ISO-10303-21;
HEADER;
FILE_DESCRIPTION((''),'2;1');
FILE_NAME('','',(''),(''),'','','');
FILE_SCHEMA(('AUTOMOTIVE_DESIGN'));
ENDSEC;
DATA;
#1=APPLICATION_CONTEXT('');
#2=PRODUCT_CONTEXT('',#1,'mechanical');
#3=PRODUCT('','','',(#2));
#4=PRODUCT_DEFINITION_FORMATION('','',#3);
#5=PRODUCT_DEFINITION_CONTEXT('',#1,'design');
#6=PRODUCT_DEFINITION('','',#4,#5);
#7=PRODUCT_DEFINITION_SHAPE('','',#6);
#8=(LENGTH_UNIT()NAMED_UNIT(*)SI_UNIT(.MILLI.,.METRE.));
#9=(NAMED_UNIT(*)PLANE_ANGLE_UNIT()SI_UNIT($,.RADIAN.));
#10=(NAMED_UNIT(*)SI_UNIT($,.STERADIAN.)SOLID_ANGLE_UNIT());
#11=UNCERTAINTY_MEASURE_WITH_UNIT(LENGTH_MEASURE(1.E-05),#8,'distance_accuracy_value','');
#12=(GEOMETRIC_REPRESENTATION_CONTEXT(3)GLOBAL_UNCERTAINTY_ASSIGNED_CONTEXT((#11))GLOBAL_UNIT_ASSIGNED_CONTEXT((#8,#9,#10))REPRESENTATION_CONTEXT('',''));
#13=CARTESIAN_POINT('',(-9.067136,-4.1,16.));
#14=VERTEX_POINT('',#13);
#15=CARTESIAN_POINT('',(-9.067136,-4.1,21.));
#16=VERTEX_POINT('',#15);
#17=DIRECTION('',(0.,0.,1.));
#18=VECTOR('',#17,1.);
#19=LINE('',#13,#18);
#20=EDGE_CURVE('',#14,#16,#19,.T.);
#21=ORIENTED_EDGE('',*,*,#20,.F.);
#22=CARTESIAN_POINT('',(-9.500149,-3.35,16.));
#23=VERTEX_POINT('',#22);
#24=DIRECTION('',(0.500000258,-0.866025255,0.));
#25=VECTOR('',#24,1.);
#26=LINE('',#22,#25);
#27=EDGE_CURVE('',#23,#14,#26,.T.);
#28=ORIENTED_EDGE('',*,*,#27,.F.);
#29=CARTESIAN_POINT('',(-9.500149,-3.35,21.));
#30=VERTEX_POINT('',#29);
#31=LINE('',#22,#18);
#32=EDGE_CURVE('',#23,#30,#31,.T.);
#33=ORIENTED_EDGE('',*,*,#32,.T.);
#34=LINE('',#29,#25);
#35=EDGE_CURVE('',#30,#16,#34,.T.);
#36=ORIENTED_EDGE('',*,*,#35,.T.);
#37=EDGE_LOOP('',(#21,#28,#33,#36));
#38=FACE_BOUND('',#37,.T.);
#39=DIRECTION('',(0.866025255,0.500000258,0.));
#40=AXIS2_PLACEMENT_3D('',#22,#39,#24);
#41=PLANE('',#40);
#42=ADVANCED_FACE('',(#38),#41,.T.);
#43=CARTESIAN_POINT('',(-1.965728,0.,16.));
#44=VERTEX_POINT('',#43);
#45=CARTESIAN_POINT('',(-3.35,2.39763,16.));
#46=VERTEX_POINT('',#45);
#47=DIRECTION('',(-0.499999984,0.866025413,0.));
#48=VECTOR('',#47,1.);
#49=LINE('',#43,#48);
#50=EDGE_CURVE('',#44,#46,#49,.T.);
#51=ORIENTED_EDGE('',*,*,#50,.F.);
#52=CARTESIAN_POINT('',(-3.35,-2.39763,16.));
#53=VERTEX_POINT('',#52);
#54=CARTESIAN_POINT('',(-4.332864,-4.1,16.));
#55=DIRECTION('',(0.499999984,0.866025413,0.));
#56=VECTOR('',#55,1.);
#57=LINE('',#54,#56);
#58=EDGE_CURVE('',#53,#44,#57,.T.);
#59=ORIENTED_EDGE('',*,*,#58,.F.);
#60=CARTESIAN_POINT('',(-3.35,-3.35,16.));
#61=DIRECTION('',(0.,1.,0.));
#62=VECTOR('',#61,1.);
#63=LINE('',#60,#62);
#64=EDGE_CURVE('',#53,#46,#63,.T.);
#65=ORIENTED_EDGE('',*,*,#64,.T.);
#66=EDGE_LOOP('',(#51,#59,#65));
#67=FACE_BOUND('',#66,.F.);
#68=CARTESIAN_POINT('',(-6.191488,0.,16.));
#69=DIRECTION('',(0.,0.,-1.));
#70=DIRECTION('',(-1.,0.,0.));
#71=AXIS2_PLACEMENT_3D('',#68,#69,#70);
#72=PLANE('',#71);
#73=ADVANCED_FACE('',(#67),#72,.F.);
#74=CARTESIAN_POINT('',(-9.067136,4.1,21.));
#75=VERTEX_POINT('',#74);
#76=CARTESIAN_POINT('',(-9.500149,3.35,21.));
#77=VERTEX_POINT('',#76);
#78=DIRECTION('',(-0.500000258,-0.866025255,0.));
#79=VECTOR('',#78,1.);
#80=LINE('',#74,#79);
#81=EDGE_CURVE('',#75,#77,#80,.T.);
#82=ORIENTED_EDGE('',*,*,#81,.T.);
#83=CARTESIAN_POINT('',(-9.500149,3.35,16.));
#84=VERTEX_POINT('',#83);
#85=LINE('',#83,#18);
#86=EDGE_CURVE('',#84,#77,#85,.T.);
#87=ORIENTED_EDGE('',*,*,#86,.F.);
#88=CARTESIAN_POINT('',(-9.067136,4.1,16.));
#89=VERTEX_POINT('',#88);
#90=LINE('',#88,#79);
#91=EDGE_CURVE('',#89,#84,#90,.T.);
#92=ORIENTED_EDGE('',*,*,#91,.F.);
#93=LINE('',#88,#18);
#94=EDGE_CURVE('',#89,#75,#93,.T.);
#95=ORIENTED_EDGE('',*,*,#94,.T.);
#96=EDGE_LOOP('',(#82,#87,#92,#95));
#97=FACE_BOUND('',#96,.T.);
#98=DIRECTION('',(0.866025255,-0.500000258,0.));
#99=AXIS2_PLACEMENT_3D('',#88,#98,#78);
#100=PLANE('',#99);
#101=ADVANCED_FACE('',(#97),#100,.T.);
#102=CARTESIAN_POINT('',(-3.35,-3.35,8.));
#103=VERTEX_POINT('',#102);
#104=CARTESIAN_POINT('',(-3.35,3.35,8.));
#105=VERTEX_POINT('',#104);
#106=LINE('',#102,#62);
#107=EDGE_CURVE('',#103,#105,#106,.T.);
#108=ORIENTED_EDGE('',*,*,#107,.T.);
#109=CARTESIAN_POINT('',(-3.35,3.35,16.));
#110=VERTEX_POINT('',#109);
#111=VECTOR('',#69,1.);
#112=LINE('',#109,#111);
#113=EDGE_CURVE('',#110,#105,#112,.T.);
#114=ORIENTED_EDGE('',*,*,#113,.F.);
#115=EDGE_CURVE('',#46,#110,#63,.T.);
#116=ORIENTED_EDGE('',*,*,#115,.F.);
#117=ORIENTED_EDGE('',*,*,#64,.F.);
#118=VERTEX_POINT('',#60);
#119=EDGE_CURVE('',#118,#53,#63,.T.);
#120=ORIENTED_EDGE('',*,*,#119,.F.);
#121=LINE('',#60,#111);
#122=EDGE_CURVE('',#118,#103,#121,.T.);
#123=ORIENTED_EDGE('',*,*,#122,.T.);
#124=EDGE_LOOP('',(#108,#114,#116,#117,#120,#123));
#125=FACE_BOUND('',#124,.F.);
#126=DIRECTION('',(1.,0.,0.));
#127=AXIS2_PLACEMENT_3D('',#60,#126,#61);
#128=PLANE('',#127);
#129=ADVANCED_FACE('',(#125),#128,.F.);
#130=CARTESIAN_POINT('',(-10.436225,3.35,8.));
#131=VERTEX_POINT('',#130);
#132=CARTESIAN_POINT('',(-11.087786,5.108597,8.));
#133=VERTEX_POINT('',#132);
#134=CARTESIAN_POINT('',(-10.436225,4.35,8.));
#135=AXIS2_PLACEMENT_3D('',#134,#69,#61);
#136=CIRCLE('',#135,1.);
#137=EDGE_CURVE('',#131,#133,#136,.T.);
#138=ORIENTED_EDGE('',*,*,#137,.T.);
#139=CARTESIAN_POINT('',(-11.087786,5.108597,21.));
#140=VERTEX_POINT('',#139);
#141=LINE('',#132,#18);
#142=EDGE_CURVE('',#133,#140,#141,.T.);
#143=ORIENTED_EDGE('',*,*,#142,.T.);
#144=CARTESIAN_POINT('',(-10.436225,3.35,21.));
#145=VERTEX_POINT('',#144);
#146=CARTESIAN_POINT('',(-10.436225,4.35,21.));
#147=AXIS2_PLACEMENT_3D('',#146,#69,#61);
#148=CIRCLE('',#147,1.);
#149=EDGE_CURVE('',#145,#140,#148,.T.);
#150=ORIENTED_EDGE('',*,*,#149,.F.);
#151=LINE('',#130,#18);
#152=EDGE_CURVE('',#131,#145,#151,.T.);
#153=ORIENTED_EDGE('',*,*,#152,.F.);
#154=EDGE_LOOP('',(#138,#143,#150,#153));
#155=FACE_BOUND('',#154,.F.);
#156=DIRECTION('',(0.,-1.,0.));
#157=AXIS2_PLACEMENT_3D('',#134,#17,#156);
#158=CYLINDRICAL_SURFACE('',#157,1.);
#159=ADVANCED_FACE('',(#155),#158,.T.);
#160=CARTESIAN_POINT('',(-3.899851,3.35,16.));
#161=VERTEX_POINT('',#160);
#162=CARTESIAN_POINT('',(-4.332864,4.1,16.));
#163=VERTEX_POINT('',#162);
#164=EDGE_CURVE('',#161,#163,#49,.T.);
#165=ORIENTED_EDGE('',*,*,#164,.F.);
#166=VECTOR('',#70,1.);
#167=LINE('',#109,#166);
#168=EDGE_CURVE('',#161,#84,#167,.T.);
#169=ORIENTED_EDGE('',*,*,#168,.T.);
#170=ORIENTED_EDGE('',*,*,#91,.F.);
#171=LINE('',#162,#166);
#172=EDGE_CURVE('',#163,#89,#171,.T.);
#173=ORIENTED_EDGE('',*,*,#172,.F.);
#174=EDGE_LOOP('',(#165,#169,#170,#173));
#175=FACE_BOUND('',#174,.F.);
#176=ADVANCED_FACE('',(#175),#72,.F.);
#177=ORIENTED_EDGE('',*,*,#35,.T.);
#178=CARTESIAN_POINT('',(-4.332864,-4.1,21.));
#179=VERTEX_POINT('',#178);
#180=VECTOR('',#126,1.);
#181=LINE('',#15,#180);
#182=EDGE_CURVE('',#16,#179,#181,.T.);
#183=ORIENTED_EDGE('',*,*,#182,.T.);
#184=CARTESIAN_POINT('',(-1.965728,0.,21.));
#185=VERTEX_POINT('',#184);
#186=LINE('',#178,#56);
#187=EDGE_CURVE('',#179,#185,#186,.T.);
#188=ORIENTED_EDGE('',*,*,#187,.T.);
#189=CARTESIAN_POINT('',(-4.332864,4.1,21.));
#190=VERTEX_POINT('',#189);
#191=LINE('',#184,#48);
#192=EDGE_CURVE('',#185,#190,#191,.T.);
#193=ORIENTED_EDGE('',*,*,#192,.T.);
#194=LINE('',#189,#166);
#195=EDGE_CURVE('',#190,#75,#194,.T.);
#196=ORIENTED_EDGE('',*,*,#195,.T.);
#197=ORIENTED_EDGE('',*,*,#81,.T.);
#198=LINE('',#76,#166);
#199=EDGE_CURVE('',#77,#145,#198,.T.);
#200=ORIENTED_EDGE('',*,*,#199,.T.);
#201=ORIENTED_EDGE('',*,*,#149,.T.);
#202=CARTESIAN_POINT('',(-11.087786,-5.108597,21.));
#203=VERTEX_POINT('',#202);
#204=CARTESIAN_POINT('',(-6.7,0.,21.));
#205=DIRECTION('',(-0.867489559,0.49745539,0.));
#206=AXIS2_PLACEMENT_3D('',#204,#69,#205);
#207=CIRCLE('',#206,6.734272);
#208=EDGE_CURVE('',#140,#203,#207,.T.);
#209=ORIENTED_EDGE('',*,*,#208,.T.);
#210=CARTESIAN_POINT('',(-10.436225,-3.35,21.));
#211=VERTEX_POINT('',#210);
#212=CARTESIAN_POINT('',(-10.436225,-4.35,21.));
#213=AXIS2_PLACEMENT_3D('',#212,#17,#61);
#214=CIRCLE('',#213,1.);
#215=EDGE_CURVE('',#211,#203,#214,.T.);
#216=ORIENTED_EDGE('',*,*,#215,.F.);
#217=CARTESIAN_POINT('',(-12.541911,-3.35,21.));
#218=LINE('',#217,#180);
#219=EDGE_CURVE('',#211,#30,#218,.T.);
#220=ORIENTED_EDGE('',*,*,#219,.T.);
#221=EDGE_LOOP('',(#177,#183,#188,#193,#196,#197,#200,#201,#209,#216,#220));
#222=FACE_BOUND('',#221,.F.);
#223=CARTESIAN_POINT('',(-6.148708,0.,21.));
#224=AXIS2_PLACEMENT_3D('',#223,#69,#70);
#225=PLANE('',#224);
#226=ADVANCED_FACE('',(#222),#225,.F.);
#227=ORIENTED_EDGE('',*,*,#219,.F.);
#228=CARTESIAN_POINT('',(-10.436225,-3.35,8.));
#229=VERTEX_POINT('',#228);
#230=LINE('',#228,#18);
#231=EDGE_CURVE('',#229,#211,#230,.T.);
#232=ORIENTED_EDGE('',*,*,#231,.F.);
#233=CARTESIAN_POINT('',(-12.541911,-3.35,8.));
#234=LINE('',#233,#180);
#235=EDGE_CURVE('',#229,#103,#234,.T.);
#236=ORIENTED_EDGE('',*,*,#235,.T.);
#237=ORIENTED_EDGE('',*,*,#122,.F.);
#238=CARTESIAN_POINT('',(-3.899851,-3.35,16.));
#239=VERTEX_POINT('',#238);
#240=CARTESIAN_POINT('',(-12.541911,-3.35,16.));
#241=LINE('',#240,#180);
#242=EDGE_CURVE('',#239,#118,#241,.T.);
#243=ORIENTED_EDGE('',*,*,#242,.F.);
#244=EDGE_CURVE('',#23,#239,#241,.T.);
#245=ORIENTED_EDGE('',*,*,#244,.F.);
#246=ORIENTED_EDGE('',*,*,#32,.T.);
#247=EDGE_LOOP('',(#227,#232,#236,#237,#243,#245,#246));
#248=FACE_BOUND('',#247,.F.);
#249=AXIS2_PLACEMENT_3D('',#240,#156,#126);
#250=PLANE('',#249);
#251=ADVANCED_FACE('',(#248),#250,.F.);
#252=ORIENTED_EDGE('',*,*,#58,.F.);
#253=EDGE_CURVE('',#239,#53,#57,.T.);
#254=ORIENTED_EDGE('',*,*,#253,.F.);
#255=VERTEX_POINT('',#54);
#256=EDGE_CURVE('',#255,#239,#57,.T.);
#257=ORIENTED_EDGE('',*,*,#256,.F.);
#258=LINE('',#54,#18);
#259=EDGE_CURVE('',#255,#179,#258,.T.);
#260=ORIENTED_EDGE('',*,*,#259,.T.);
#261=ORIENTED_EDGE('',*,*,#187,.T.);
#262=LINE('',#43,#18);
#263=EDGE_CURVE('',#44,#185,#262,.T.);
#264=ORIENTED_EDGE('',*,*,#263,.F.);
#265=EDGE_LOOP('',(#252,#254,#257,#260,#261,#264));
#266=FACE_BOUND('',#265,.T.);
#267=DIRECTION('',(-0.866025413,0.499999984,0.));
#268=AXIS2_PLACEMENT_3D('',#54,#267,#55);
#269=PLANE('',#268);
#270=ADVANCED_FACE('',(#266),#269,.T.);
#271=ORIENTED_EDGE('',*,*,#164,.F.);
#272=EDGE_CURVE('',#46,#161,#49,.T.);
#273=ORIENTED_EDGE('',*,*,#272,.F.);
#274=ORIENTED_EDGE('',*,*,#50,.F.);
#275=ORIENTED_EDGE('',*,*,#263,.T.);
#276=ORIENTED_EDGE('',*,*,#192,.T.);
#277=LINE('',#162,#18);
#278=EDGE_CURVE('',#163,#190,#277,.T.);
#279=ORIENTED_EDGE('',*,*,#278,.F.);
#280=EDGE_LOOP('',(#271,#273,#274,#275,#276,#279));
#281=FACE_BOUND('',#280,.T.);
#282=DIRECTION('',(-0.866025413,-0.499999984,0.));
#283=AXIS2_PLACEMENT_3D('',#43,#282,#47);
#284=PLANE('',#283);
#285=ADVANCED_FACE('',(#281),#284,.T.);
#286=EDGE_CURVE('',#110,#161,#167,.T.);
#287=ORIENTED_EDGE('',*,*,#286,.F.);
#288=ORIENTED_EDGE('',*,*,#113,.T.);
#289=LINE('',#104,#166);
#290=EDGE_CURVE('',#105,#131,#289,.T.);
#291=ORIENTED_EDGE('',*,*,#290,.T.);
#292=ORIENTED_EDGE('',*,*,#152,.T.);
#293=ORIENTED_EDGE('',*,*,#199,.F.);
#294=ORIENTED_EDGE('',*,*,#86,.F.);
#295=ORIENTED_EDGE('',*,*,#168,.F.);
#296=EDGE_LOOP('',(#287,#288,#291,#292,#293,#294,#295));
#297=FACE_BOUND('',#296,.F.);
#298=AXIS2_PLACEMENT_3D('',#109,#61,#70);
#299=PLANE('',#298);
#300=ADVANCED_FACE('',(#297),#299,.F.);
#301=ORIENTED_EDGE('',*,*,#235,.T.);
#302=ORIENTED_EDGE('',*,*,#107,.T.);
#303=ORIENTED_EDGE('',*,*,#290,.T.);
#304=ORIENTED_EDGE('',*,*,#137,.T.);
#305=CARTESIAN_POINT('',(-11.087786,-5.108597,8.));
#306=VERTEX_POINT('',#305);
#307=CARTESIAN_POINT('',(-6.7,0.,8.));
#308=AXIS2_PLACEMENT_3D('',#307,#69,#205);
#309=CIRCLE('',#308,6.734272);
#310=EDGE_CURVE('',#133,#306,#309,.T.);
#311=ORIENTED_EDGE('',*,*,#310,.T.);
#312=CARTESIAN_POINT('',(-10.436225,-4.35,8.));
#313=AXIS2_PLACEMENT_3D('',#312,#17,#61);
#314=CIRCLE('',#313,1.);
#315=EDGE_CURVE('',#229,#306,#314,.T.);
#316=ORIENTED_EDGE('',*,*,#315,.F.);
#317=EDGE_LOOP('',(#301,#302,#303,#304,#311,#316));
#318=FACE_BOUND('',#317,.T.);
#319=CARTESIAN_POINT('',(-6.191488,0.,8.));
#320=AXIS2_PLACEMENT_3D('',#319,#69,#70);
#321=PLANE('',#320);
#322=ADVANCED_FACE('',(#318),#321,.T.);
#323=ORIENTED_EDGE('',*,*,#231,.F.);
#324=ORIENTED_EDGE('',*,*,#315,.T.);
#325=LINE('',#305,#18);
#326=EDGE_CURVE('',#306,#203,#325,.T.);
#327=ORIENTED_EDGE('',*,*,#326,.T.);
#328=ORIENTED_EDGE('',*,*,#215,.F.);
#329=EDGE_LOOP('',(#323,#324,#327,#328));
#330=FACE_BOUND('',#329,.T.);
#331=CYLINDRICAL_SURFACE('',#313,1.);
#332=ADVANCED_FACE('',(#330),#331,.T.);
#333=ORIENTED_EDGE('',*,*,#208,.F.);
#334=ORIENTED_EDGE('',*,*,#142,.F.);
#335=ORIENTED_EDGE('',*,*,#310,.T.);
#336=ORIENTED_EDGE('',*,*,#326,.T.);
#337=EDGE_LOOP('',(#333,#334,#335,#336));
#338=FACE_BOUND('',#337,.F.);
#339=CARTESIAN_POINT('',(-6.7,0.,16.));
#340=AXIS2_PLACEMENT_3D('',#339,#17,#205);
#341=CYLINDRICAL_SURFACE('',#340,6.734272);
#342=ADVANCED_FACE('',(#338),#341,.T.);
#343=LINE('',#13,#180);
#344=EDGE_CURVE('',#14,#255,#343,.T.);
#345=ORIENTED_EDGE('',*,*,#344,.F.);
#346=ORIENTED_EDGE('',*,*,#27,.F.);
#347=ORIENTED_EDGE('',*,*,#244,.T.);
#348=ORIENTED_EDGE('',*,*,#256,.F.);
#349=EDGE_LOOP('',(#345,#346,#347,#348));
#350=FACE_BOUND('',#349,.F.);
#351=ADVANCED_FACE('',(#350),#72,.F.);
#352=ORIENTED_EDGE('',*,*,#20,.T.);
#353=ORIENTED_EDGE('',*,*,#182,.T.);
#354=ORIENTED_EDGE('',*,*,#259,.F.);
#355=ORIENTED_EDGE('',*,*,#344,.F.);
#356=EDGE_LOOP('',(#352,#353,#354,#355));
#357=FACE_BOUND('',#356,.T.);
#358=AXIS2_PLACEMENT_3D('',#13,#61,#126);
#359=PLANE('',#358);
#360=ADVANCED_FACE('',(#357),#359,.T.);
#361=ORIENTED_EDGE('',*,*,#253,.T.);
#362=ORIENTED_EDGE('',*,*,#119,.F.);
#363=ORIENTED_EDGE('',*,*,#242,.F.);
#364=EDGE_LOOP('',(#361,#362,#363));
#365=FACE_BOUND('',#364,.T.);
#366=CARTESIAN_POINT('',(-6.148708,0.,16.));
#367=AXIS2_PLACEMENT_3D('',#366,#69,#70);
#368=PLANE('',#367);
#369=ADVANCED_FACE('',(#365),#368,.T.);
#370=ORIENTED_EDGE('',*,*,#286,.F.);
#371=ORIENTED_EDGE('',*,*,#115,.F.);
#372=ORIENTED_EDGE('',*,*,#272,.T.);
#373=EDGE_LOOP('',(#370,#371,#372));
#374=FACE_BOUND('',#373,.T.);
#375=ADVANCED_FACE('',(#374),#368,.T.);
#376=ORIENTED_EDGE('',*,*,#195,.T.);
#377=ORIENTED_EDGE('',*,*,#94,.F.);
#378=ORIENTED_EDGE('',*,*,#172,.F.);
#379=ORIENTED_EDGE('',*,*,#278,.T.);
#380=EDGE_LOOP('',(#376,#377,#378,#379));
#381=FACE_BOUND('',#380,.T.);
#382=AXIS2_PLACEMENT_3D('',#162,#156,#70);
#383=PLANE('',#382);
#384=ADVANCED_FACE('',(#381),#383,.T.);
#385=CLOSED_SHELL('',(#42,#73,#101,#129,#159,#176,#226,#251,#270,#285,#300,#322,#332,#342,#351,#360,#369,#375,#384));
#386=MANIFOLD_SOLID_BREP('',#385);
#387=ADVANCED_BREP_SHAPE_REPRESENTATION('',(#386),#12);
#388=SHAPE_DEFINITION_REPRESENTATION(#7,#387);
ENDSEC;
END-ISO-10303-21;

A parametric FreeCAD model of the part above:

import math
import FreeCAD as App
import Part
import Sketcher
Q = App.Units.Quantity


def edges_at(feature, points):
    """Names of the edges that pass closest to the given points."""
    edges = feature.Shape.Edges
    near = lambda p: min(range(len(edges)), key=lambda i: edges[i].distToShape(Part.Vertex(*p))[0])
    return sorted({f"Edge{near(p) + 1}" for p in points})

doc = App.newDocument("Part")
body = doc.addObject("PartDesign::Body", "Body")

sketch1 = doc.addObject("Sketcher::SketchObject", "Sketch")
body.addObject(sketch1)
sketch1.AttachmentSupport = (doc.XY_Plane, [""])
sketch1.MapMode = "FlatFace"
sketch1.addGeometry([
    Part.LineSegment(App.Vector(-4.7, 0, 0), App.Vector(-2.4, 4.1, 0)),
    Part.LineSegment(App.Vector(-2.4, 4.1, 0), App.Vector(2.4, 4.1, 0)),
    Part.LineSegment(App.Vector(2.4, 4.1, 0), App.Vector(2.8, 3.4, 0)),
    Part.LineSegment(App.Vector(2.8, 3.4, 0), App.Vector(5.8, 3.4, 0)),
    Part.ArcOfCircle(Part.Circle(App.Vector(0, 0, 0), App.Vector(0, 0, 1), 6.7), math.radians(30), math.radians(330)),
    Part.LineSegment(App.Vector(5.8, -3.4, 0), App.Vector(2.8, -3.4, 0)),
    Part.LineSegment(App.Vector(2.8, -3.4, 0), App.Vector(2.4, -4.1, 0)),
    Part.LineSegment(App.Vector(2.4, -4.1, 0), App.Vector(-2.4, -4.1, 0)),
    Part.LineSegment(App.Vector(-2.4, -4.1, 0), App.Vector(-4.7, 0, 0)),
], False)
sketch1.addConstraint([
    Sketcher.Constraint("Coincident", 0, 2, 1, 1),
    Sketcher.Constraint("Coincident", 1, 2, 2, 1),
    Sketcher.Constraint("Coincident", 2, 2, 3, 1),
    Sketcher.Constraint("Coincident", 3, 2, 4, 1),
    Sketcher.Constraint("Coincident", 4, 2, 5, 1),
    Sketcher.Constraint("Coincident", 5, 2, 6, 1),
    Sketcher.Constraint("Coincident", 6, 2, 7, 1),
    Sketcher.Constraint("Coincident", 7, 2, 8, 1),
    Sketcher.Constraint("Coincident", 8, 2, 0, 1),
    Sketcher.Constraint("Horizontal", 1),
    Sketcher.Constraint("Horizontal", 3),
    Sketcher.Constraint("Horizontal", 5),
    Sketcher.Constraint("Horizontal", 7),
    Sketcher.Constraint("Coincident", 4, 3, -1, 1),
    Sketcher.Constraint("Symmetric", 0, 2, 6, 2, -1, 1),
    Sketcher.Constraint("Symmetric", 2, 2, 5, 2, -1),
    Sketcher.Constraint("PointOnObject", 8, 2, -1),
    Sketcher.Constraint("Parallel", 0, 6),
    Sketcher.Constraint("Parallel", 2, 8),
    Sketcher.Constraint("Vertical", 1, 2, 6, 2),
    Sketcher.Constraint("Angle", 0, Q("60.000001 deg")),
    Sketcher.Constraint("DistanceY", -1, 1, 0, 2, Q("4.1 mm")),
    Sketcher.Constraint("DistanceY", 4, 2, 3, 2, Q("6.7 mm")),
    Sketcher.Constraint("Radius", 4, Q("6.734272 mm")),
    Sketcher.Constraint("DistanceX", 1, 1, 1, 2, Q("4.734272 mm")),
])
pad1 = doc.addObject("PartDesign::Pad", "Pad")
body.addObject(pad1)
pad1.Profile = sketch1
pad1.Length = 5
pad1.Reversed = True

sketch2 = doc.addObject("Sketcher::SketchObject", "Sketch001")
body.addObject(sketch2)
sketch2.AttachmentSupport = (doc.XY_Plane, [""])
sketch2.MapMode = "FlatFace"
sketch2.addGeometry([
    Part.LineSegment(App.Vector(6, -3, 0), App.Vector(-3, -3, 0)),
    Part.LineSegment(App.Vector(-3, -3, 0), App.Vector(-3, 3, 0)),
    Part.LineSegment(App.Vector(-3, 3, 0), App.Vector(6, 3, 0)),
    Part.ArcOfCircle(Part.Circle(App.Vector(0, 0, 0), App.Vector(0, 0, 1), 7), math.radians(30), math.radians(330)),
], False)
sketch2.addConstraint([
    Sketcher.Constraint("Coincident", 0, 2, 1, 1),
    Sketcher.Constraint("Coincident", 1, 2, 2, 1),
    Sketcher.Constraint("Coincident", 2, 2, 3, 1),
    Sketcher.Constraint("Coincident", 3, 2, 0, 1),
    Sketcher.Constraint("Horizontal", 0),
    Sketcher.Constraint("Vertical", 1),
    Sketcher.Constraint("Horizontal", 2),
    Sketcher.Constraint("Coincident", 3, 3, -1, 1),
    Sketcher.Constraint("Vertical", 2, 2, 3, 2),
    Sketcher.Constraint("DistanceY", 1, 1, 1, 2, Q("6.7 mm")),
    Sketcher.Constraint("DistanceX", 0, 2, -1, 1, Q("3.35 mm")),
    Sketcher.Constraint("Radius", 3, Q("6.734272 mm")),
])
pad2 = doc.addObject("PartDesign::Pad", "Pad001")
body.addObject(pad2)
pad2.Profile = sketch2
pad2.Length = 8
doc.recompute()

fillet = doc.addObject("PartDesign::Fillet", "Fillet")
body.addObject(fillet)
fillet.Base = (pad2, edges_at(pad2, [(5.842, 3.35, 1.5), (5.842, -3.35, 1.5)]))
fillet.Radius = 1
body2 = doc.addObject("PartDesign::Body", "Body001")
doc.recompute()

body.Placement = App.Placement(App.Vector(-6.7, 0, 16), App.Rotation(App.Vector(0, -1, 0), 180))
boolean = doc.addObject("PartDesign::Boolean", "Boolean")
body2.addObject(boolean)
boolean.Type = "Fuse"
boolean.addObjects([body])

doc.recompute()
